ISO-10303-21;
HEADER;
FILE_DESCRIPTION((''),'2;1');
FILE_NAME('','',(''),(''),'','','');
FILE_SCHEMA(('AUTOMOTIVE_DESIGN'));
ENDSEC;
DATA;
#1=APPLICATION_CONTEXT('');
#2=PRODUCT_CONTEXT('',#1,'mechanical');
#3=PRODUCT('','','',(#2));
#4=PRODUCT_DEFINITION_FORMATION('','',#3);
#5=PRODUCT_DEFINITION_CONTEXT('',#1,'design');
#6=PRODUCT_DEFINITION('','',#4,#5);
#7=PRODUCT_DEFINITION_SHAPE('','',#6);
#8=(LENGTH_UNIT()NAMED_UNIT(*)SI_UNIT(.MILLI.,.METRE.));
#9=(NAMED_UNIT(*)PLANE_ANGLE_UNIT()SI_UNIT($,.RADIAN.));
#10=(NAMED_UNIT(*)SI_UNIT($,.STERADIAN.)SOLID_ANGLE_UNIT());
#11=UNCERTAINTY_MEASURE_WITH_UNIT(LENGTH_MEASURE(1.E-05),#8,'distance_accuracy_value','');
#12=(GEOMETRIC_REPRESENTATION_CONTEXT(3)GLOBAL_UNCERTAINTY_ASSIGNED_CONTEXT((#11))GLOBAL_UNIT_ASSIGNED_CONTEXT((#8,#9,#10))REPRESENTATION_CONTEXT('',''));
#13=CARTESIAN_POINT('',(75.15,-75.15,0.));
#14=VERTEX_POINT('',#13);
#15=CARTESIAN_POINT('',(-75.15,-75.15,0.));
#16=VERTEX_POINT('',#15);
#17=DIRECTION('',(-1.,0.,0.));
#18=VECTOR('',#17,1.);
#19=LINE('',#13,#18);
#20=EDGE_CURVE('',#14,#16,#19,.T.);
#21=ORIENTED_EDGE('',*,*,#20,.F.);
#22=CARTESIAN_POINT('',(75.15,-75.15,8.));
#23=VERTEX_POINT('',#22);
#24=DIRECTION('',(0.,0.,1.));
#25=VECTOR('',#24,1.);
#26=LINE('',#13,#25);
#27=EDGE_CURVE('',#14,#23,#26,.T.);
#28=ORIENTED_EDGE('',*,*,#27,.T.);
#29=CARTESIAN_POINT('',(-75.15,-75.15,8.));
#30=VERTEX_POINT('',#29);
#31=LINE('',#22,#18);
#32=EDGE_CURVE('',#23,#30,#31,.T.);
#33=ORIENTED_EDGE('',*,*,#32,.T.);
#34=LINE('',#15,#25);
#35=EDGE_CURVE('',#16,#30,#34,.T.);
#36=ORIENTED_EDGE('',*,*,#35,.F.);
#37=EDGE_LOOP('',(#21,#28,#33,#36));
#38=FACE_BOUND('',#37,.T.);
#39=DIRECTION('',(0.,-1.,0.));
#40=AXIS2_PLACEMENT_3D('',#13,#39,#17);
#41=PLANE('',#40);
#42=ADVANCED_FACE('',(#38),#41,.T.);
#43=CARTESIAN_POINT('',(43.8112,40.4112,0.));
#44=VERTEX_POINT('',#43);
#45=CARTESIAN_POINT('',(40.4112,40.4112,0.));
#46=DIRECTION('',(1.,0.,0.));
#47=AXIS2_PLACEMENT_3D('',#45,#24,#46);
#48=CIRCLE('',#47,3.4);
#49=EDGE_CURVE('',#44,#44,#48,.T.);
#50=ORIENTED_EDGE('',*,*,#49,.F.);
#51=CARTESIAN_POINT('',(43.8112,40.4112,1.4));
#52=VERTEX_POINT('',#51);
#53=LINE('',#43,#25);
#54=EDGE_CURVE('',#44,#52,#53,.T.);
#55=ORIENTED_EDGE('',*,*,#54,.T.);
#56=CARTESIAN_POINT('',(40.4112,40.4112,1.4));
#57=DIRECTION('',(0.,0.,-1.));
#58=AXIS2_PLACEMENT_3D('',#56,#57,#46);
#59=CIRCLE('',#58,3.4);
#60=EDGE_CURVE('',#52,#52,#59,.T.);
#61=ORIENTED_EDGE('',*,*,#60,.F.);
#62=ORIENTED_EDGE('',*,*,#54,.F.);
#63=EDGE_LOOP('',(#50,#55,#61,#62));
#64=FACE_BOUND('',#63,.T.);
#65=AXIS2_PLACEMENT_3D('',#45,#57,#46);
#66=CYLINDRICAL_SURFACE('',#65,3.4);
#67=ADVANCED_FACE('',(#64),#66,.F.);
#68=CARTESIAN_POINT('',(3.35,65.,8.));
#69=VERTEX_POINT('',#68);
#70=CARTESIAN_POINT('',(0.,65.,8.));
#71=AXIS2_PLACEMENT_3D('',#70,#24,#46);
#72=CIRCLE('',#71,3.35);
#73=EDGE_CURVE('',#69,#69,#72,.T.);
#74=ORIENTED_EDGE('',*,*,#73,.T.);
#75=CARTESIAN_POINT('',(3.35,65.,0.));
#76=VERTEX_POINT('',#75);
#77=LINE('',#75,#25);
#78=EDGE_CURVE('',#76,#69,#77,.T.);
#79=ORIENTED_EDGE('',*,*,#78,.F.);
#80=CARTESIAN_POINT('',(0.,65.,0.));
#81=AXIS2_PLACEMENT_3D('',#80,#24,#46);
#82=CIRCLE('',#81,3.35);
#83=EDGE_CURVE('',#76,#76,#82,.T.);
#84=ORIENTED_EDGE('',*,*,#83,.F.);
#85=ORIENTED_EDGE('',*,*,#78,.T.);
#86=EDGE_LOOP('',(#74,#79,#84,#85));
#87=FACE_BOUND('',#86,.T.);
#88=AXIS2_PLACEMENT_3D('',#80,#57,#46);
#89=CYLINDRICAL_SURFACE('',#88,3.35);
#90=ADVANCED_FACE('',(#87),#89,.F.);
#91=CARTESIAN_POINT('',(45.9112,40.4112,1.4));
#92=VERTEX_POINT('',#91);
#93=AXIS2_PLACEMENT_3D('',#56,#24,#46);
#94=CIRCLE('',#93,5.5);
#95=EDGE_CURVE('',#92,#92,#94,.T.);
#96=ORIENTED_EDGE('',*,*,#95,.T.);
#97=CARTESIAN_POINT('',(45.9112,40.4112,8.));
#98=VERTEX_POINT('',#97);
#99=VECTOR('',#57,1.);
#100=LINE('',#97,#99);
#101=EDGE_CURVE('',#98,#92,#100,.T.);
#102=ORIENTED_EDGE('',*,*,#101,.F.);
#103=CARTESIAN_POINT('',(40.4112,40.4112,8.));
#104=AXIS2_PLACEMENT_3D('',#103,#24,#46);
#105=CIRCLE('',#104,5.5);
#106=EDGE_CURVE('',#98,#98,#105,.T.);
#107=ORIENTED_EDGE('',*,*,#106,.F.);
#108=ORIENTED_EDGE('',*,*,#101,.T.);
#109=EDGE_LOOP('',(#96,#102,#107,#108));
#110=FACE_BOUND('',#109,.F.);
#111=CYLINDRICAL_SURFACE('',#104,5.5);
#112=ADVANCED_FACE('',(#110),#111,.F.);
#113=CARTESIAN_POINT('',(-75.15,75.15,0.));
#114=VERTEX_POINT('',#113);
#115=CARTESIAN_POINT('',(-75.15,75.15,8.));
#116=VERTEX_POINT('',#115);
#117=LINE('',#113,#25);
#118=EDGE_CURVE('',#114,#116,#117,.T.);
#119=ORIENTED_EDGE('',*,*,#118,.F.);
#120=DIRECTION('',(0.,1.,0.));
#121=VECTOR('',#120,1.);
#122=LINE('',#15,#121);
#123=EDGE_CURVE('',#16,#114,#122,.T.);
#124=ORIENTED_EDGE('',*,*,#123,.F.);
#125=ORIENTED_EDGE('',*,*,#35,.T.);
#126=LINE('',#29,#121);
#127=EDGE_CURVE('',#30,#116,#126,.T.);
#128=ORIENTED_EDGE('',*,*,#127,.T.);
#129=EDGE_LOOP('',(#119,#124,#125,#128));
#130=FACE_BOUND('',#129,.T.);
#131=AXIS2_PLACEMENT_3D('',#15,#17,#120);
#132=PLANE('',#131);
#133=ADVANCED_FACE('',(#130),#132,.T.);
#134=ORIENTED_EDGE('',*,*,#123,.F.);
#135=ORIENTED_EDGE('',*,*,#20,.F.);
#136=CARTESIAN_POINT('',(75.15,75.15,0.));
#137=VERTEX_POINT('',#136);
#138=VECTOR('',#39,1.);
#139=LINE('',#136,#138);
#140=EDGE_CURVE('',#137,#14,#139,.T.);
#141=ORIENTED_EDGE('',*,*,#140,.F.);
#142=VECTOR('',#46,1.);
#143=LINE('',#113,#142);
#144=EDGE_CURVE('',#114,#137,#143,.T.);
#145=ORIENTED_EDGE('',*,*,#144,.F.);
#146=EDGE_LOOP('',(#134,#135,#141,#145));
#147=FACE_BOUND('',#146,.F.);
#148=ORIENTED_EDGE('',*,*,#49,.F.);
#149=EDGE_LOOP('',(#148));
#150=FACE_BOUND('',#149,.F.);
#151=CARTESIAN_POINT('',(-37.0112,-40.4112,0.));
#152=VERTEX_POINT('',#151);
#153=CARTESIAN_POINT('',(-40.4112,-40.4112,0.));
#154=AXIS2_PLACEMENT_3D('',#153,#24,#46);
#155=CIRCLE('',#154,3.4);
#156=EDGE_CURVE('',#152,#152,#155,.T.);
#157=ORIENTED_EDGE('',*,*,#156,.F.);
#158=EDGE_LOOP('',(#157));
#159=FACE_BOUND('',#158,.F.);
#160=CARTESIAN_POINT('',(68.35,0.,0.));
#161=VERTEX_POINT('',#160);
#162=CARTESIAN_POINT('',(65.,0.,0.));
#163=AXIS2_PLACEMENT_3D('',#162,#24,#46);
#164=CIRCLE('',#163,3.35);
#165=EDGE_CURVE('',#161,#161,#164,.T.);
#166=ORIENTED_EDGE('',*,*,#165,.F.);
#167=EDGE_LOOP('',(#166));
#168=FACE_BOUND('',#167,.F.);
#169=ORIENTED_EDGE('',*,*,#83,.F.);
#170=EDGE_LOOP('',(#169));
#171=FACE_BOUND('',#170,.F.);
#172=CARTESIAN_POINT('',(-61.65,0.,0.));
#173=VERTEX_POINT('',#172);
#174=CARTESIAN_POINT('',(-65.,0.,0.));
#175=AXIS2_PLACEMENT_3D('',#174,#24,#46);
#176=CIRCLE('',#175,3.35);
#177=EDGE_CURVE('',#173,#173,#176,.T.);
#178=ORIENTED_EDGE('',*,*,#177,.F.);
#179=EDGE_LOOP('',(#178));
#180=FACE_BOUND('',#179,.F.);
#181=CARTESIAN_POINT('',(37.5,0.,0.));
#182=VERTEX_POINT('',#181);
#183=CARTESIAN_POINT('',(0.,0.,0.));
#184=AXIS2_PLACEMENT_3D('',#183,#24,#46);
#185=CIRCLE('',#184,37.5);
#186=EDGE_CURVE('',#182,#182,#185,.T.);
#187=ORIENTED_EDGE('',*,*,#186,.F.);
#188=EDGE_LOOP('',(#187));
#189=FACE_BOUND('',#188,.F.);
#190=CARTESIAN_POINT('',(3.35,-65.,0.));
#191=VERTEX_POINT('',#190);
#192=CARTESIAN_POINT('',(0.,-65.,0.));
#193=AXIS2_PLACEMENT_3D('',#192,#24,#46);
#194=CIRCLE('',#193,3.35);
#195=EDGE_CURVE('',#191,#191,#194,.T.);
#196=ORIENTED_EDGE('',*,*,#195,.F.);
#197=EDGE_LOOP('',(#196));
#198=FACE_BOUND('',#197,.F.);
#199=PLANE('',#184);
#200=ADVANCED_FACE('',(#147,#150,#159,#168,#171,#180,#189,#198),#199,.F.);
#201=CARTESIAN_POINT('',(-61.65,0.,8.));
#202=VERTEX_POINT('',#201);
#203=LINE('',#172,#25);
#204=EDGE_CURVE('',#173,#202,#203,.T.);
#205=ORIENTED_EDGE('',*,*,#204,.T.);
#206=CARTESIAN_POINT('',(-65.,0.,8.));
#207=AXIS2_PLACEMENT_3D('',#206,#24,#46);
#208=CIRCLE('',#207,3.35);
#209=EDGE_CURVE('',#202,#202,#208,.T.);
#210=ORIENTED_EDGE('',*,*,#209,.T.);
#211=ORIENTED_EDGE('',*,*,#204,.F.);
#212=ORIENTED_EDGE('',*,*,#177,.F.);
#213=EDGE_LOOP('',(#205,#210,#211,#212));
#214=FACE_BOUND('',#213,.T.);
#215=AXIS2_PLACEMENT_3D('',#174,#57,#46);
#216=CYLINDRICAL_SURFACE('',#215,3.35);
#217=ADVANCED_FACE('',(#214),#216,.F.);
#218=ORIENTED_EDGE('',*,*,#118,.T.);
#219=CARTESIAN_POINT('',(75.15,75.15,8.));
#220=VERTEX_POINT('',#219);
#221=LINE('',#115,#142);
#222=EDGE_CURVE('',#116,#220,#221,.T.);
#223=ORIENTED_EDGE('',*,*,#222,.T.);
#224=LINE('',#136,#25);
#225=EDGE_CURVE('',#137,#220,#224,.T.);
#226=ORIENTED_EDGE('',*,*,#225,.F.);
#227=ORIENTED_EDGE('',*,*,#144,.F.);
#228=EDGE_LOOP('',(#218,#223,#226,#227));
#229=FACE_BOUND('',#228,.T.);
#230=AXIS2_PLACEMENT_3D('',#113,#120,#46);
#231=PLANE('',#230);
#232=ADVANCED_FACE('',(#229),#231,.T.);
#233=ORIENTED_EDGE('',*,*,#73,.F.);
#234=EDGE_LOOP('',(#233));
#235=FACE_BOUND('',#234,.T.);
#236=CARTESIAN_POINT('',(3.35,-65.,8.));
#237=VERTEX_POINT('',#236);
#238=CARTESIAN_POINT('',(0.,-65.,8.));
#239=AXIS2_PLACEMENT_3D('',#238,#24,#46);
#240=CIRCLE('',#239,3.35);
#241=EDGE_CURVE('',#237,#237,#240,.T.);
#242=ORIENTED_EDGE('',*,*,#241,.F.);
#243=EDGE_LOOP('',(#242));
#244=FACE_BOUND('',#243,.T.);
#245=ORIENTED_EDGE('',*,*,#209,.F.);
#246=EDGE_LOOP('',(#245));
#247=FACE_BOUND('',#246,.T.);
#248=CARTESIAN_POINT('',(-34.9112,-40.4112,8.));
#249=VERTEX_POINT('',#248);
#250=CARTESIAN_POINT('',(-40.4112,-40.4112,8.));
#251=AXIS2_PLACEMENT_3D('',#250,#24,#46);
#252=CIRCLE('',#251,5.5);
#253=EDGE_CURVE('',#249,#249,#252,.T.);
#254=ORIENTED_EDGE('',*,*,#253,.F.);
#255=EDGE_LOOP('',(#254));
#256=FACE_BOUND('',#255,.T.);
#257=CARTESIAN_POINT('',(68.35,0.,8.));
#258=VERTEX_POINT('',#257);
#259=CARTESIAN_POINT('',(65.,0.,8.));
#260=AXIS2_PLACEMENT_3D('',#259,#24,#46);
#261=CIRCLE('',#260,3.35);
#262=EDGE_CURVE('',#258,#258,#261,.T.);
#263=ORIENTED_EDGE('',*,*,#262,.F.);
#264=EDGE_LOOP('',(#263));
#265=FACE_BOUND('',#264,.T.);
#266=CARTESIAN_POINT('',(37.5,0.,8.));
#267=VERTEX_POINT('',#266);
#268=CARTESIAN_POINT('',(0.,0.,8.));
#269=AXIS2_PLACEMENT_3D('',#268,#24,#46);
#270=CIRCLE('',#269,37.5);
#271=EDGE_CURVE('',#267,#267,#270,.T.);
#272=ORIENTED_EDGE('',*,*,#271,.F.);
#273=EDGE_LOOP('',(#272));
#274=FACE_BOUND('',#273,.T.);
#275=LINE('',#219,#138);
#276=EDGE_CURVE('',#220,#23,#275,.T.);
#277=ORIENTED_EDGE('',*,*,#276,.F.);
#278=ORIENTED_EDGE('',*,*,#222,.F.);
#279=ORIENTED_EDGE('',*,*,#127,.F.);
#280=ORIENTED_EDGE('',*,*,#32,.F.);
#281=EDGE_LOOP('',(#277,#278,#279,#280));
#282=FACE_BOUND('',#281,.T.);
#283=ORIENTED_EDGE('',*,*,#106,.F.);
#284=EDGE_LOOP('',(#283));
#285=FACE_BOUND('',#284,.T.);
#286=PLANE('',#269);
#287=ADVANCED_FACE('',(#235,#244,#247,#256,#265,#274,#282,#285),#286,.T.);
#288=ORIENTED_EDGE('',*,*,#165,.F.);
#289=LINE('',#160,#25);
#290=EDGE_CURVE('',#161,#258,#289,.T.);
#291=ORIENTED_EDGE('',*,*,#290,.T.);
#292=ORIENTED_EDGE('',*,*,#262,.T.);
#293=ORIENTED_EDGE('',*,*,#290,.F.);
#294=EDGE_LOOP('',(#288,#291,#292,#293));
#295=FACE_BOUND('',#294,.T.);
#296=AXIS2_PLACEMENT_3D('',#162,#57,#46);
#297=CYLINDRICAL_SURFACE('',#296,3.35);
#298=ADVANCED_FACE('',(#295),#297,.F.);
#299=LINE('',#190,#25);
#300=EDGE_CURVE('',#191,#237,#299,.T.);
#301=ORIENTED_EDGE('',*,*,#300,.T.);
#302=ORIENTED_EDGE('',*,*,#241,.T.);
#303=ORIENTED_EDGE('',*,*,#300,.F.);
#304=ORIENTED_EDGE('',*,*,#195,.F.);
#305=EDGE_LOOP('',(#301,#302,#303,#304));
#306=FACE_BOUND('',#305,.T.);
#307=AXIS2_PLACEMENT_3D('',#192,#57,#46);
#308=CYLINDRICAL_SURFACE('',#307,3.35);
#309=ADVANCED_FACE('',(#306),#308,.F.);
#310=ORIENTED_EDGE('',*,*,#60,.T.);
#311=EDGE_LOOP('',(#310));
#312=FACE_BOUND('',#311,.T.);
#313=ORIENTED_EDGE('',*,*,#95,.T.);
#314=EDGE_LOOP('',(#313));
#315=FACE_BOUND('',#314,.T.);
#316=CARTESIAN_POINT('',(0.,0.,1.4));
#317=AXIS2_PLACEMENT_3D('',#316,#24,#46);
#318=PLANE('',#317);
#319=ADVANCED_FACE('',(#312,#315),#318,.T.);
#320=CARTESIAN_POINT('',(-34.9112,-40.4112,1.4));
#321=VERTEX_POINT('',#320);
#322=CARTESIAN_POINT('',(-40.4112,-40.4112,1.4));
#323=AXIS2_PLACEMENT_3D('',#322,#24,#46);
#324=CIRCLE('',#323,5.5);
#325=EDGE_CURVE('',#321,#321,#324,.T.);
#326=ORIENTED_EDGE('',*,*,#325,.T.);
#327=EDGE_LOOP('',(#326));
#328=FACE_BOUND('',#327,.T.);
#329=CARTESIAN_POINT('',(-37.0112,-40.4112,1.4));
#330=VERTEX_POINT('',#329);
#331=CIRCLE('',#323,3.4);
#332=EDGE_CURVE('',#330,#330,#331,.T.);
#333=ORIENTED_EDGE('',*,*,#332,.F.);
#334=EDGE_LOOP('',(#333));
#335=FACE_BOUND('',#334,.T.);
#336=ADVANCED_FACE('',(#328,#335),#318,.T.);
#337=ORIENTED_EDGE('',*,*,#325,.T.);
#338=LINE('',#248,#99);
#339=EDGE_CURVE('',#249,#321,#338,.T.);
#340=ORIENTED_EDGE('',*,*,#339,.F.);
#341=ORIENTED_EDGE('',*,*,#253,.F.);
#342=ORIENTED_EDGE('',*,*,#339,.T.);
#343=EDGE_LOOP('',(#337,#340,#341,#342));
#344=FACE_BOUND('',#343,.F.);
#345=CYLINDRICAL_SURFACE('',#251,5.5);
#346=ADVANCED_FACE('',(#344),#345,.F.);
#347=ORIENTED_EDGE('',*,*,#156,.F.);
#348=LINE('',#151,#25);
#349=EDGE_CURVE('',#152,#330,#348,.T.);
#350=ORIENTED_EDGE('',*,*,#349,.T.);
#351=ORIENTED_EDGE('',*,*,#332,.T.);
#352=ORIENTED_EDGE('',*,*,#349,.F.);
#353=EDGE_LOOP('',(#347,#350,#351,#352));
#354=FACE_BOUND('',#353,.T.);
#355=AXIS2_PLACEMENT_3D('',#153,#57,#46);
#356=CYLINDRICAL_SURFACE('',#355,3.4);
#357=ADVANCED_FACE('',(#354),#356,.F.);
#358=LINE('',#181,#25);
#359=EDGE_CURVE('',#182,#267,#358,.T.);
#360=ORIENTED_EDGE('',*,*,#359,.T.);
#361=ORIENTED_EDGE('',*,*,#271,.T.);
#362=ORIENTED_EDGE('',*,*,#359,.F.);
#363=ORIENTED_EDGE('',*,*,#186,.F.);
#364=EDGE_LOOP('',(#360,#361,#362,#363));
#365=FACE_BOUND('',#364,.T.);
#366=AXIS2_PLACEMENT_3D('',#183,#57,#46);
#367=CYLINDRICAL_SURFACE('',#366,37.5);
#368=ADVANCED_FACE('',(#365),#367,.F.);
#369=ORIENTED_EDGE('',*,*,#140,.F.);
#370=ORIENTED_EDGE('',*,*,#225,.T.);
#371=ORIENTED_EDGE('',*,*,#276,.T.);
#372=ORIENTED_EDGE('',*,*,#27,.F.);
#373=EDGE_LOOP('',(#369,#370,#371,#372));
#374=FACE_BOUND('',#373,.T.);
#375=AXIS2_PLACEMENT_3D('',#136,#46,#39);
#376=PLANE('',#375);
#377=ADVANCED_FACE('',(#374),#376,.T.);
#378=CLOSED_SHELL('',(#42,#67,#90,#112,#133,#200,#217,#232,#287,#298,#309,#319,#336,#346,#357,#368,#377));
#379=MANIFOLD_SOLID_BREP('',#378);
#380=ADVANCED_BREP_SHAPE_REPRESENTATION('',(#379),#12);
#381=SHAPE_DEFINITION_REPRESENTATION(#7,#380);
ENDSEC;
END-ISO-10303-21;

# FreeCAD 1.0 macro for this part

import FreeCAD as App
import Part
import Sketcher
from FreeCAD import Vector


def add_polygon(sketch, points):
    """Adds a closed chain of lines whose ends are joined by coincident constraints."""
    first, n = sketch.GeometryCount, len(points)
    for a, b in zip(points, points[1:] + points[:1]):
        sketch.addGeometry(Part.LineSegment(App.Vector(*a, 0), App.Vector(*b, 0)), False)
    for i in range(n):
        sketch.addConstraint(Sketcher.Constraint("Coincident", first + i, 2, first + (i + 1) % n, 1))

doc = App.newDocument("Part")
body = doc.addObject("PartDesign::Body", "Body")

# Sketch on XY plane
sketch1 = body.newObject("Sketcher::SketchObject", "Sketch")
sketch1.AttachmentSupport = (doc.getObject("XY_Plane"), [""])
sketch1.MapMode = "FlatFace"
add_polygon(sketch1, [(75.15, 75.15), (-75.15, 75.15), (-75.15, -75.15), (75.15, -75.15)])  # lines 0-3
sketch1.addGeometry(Part.Circle(Vector(-40.4112, -40.4112, 0), Vector(0, 0, 1), 3.4), False)  # 4
sketch1.addGeometry(Part.Circle(Vector(0, -65, 0), Vector(0, 0, 1), 3.35), False)  # 5
sketch1.addGeometry(Part.Circle(Vector(-65, 0, 0), Vector(0, 0, 1), 3.35), False)  # 6
sketch1.addGeometry(Part.Circle(Vector(0, 0, 0), Vector(0, 0, 1), 37.5), False)  # 7
sketch1.addGeometry(Part.Circle(Vector(65, 0, 0), Vector(0, 0, 1), 3.35), False)  # 8
sketch1.addGeometry(Part.Circle(Vector(0, 65, 0), Vector(0, 0, 1), 3.35), False)  # 9
sketch1.addGeometry(Part.Circle(Vector(40.4112, 40.4112, 0), Vector(0, 0, 1), 3.4), False)  # 10
sketch1.addConstraint([
    Sketcher.Constraint("Horizontal", 0),
    Sketcher.Constraint("Vertical", 1),
    Sketcher.Constraint("Horizontal", 2),
    Sketcher.Constraint("Vertical", 3),
    Sketcher.Constraint("Coincident", 7, 3, -1, 1),
    Sketcher.Constraint("Equal", 5, 6),
    Sketcher.Constraint("Equal", 6, 8),
    Sketcher.Constraint("Equal", 8, 9),
    Sketcher.Constraint("Equal", 4, 10),
    Sketcher.Constraint("Symmetric", 6, 3, 8, 3, -1, 1),
    Sketcher.Constraint("Symmetric", 5, 3, 9, 3, -1, 1),
    Sketcher.Constraint("Symmetric", 4, 3, 10, 3, -1, 1),
    Sketcher.Constraint("Symmetric", 0, 2, 2, 2, -1, 1),
    Sketcher.Constraint("PointOnObject", 5, 3, -2),
    Sketcher.Constraint("PointOnObject", 6, 3, -1),
    Sketcher.Constraint("Equal", 2, 1),
    Sketcher.Constraint("Diameter", 7, 75.0),
    Sketcher.Constraint("Diameter", 4, 6.8),
    Sketcher.Constraint("Diameter", 5, 6.7),
    Sketcher.Constraint("DistanceX", 0, 2, 0, 1, 150.3),
    Sketcher.Constraint("DistanceX", 6, 3, 8, 3, 130.0),
    Sketcher.Constraint("DistanceY", 5, 3, 9, 3, 130.0),
    Sketcher.Constraint("DistanceX", 4, 3, -1, 1, 40.4112),
    Sketcher.Constraint("DistanceY", 4, 3, -1, 1, 40.4112),
])
pad1 = body.newObject("PartDesign::Pad", "Pad")
pad1.Profile = sketch1
pad1.Length = 8

# Sketch on XY plane
sketch2 = body.newObject("Sketcher::SketchObject", "Sketch001")
sketch2.AttachmentSupport = (doc.getObject("XY_Plane"), [""])
sketch2.MapMode = "FlatFace"
sketch2.AttachmentOffset = App.Placement(Vector(0, 0, 8), App.Rotation())
sketch2.addGeometry([
    Part.Circle(Vector(40.4112, 40.4112, 0), Vector(0, 0, 1), 5.5),
    Part.Circle(Vector(-40.4112, -40.4112, 0), Vector(0, 0, 1), 5.5),
    Part.Circle(Vector(-40.4112, -40.4112, 0), Vector(0, 0, 1), 3.4),
], False)
sketch2.addConstraint([
    Sketcher.Constraint("Coincident", 2, 3, 1, 3),
    Sketcher.Constraint("Equal", 0, 1),
    Sketcher.Constraint("Symmetric", 0, 3, 1, 3, -1, 1),
    Sketcher.Constraint("Diameter", 0, 11.0),
    Sketcher.Constraint("Diameter", 2, 6.8),
    Sketcher.Constraint("DistanceX", -1, 1, 0, 3, 40.4112),
    Sketcher.Constraint("DistanceY", -1, 1, 0, 3, 40.4112),
])
pocket1 = body.newObject("PartDesign::Pocket", "Pocket")
pocket1.Profile = sketch2
pocket1.Length = 6.6

doc.recompute()
